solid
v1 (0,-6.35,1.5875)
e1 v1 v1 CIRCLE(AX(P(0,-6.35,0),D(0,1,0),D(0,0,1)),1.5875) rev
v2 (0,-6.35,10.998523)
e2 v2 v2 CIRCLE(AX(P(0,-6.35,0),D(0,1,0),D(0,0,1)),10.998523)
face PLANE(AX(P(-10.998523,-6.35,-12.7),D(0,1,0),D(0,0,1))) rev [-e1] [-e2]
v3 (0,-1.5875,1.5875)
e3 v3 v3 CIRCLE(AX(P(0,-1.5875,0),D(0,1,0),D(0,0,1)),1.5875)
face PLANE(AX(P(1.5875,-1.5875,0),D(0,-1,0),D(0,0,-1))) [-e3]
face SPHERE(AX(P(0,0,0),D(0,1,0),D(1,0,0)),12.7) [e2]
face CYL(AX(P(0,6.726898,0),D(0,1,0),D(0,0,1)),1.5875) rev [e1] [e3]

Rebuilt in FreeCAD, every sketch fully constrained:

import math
import FreeCAD as App
import Part
import Sketcher

V = App.Vector
Q = App.Units.Quantity


def add_polygon(sketch, points):
    """Adds a closed chain of lines whose ends are joined by coincident constraints."""
    first, n = sketch.GeometryCount, len(points)
    for a, b in zip(points, points[1:] + points[:1]):
        sketch.addGeometry(Part.LineSegment(App.Vector(*a, 0), App.Vector(*b, 0)), False)
    for i in range(n):
        sketch.addConstraint(Sketcher.Constraint("Coincident", first + i, 2, first + (i + 1) % n, 1))

doc = App.newDocument("Part")
body = doc.addObject("PartDesign::Body", "Body")

sketch1 = body.newObject("Sketcher::SketchObject", "Sketch")
sketch1.AttachmentSupport = (doc.getObject("XY_Plane"), [""])
sketch1.MapMode = "FlatFace"
sketch1.addGeometry([
    Part.LineSegment(V(0, 13, 0), V(0, -13, 0)),
    Part.ArcOfCircle(Part.Circle(V(0, 0, 0), V(0, 0, 1), 13), math.radians(-90), math.radians(90)),
], False)
sketch1.addConstraint([
    Sketcher.Constraint("Coincident", 0, 1, 1, 2),
    Sketcher.Constraint("Coincident", 1, 1, 0, 2),
    Sketcher.Constraint("Vertical", 0),
    Sketcher.Constraint("Coincident", 1, 3, -1, 1),
    Sketcher.Constraint("PointOnObject", 0, 1, -2),
    Sketcher.Constraint("Radius", 1, Q("0.5 in")),
])
revolution = body.newObject("PartDesign::Revolution", "Revolution")
revolution.Profile = sketch1
revolution.ReferenceAxis = (sketch1, ["V_Axis"])
revolution.Angle = 360

sketch2 = body.newObject("Sketcher::SketchObject", "Sketch001")
sketch2.AttachmentSupport = (doc.getObject("XY_Plane"), [""])
sketch2.MapMode = "FlatFace"
sketch2.addGeometry([
    Part.LineSegment(V(11, -6, 0), V(-11, -6, 0)),
    Part.ArcOfCircle(Part.Circle(V(0, 0, 0), V(0, 0, 1), 13), math.radians(-150), math.radians(-30)),
], False)
sketch2.addConstraint([
    Sketcher.Constraint("Coincident", 0, 1, 1, 2),
    Sketcher.Constraint("Coincident", 1, 1, 0, 2),
    Sketcher.Constraint("Horizontal", 0),
    Sketcher.Constraint("Coincident", 1, 3, -1, 1),
    Sketcher.Constraint("Radius", 1, Q("0.5 in")),
    Sketcher.Constraint("DistanceY", 0, 1, -1, 1, Q("0.25 in")),
])
pocket1 = body.newObject("PartDesign::Pocket", "Pocket")
pocket1.Profile = sketch2
pocket1.Type = "ThroughAll"
pocket1.Midplane = True

sketch3 = body.newObject("Sketcher::SketchObject", "Sketch002")
sketch3.AttachmentSupport = (doc.getObject("XY_Plane"), [""])
sketch3.MapMode = "FlatFace"
add_polygon(sketch3, [(0, -1.6), (0, -12.7), (1.6, -12.7), (1.6, -1.6)])
sketch3.addConstraint([
    Sketcher.Constraint("Vertical", 0),
    Sketcher.Constraint("Horizontal", 1),
    Sketcher.Constraint("Vertical", 2),
    Sketcher.Constraint("Horizontal", 3),
    Sketcher.Constraint("PointOnObject", 0, 2, -2),
    Sketcher.Constraint("DistanceY", 0, 2, -1, 1, Q("0.5 in")),
    Sketcher.Constraint("DistanceX", 1, 1, 1, 2, Q("0.0625 in")),
    Sketcher.Constraint("DistanceY", 0, 2, 0, 1, Q("0.4375 in")),
])
groove = body.newObject("PartDesign::Groove", "Groove")
groove.Profile = sketch3
groove.ReferenceAxis = (sketch3, ["V_Axis"])
groove.Angle = 360

doc.recompute()
